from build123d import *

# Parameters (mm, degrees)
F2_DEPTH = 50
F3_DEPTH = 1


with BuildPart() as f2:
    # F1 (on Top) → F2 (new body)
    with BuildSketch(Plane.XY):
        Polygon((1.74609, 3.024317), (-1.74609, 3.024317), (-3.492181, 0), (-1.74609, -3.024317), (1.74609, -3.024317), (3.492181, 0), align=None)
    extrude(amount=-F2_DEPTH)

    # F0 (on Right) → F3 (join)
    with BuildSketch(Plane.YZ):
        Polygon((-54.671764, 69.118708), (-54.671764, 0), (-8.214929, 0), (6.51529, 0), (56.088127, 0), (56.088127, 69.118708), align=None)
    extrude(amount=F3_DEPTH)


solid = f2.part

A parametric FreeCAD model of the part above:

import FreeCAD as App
import Part
import Sketcher

V = App.Vector
Q = App.Units.Quantity


def add_polygon(sketch, points):
    """Adds a closed chain of lines whose ends are joined by coincident constraints."""
    first, n = sketch.GeometryCount, len(points)
    for a, b in zip(points, points[1:] + points[:1]):
        sketch.addGeometry(Part.LineSegment(App.Vector(*a, 0), App.Vector(*b, 0)), False)
    for i in range(n):
        sketch.addConstraint(Sketcher.Constraint("Coincident", first + i, 2, first + (i + 1) % n, 1))

doc = App.newDocument("Part")
body = doc.addObject("PartDesign::Body", "Body")

# Sketch on XY plane
sketch1 = doc.addObject("Sketcher::SketchObject", "Sketch")
body.addObject(sketch1)
sketch1.AttachmentSupport = (doc.XY_Plane, [""])
sketch1.MapMode = "FlatFace"
add_polygon(sketch1, [(1.7, 3), (-1.7, 3), (-3.5, 0), (-1.7, -3), (1.7, -3), (3.5, 0)])  # lines 0-5
sketch1.addConstraint(Sketcher.Constraint("Horizontal", 0))
sketch1.addConstraint(Sketcher.Constraint("Horizontal", 3))
sketch1.addConstraint(Sketcher.Constraint("Symmetric", 0, 2, 3, 2, -1, 1))
sketch1.addConstraint(Sketcher.Constraint("Symmetric", 1, 2, 4, 2, -1, 1))
sketch1.addConstraint(Sketcher.Constraint("PointOnObject", 1, 2, -1))
sketch1.addConstraint(Sketcher.Constraint("Parallel", 2, 5))
sketch1.addConstraint(Sketcher.Constraint("Vertical", 0, 2, 2, 2))
sketch1.addConstraint(Sketcher.Constraint("Angle", 1, Q("-120.000011 deg")))
sketch1.addConstraint(Sketcher.Constraint("DistanceX", 0, 2, 0, 1, 3.49218))
sketch1.addConstraint(Sketcher.Constraint("Distance", 1, 3.492181))
pad1 = doc.addObject("PartDesign::Pad", "Pad")
body.addObject(pad1)
pad1.Profile = sketch1
pad1.Length = 50
pad1.Reversed = True

# Sketch on YZ plane
sketch2 = doc.addObject("Sketcher::SketchObject", "Sketch001")
body.addObject(sketch2)
sketch2.AttachmentSupport = (doc.YZ_Plane, [""])
sketch2.MapMode = "FlatFace"
add_polygon(sketch2, [(-55, 69), (-55, 0), (56, 0), (56, 69)])  # lines 0-3
sketch2.addConstraint(Sketcher.Constraint("Vertical", 0))
sketch2.addConstraint(Sketcher.Constraint("Horizontal", 1))
sketch2.addConstraint(Sketcher.Constraint("Vertical", 2))
sketch2.addConstraint(Sketcher.Constraint("Horizontal", 3))
sketch2.addConstraint(Sketcher.Constraint("PointOnObject", 0, 2, -1))
sketch2.addConstraint(Sketcher.Constraint("DistanceX", 1, 1, 1, 2, 110.759891))
sketch2.addConstraint(Sketcher.Constraint("DistanceY", 0, 2, 0, 1, 69.118708))
sketch2.addConstraint(Sketcher.Constraint("DistanceX", 0, 2, -1, 1, 54.671764))
pad2 = doc.addObject("PartDesign::Pad", "Pad001")
body.addObject(pad2)
pad2.Profile = sketch2
pad2.Length = 1

doc.recompute()
